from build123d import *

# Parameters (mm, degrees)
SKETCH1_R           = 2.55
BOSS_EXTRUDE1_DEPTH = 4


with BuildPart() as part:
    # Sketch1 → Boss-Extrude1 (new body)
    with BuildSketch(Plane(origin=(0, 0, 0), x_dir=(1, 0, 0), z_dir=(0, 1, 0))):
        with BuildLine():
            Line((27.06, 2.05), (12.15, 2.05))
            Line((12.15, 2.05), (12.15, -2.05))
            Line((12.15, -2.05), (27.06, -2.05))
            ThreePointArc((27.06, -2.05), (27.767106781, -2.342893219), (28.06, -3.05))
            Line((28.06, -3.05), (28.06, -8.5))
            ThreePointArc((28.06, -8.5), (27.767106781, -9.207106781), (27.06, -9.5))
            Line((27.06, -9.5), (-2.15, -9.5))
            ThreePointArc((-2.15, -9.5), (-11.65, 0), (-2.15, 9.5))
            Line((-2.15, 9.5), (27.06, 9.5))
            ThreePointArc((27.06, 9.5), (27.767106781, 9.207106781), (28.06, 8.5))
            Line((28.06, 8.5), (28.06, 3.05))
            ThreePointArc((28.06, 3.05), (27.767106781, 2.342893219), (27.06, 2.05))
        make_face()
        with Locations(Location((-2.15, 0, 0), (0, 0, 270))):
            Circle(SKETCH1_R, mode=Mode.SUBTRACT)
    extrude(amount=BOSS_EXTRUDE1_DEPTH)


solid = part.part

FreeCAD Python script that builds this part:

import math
import FreeCAD as App
import Part
import Sketcher
from FreeCAD import Vector
Q = App.Units.Quantity

doc = App.newDocument("Part")
params = doc.addObject("Spreadsheet::Sheet", "Params")
for row, (alias, value) in enumerate([
    ("sketch1_radius", "1 mm"),
    ("sketch1_diameter", "5.1 mm"),
    ("sketch1_radius2", "9.5 mm"),
    ("sketch1_height", "4.1 mm"),
    ("sketch1_width", "14.91 mm"),
    ("pad1_length", "4 mm"),
], start=1):
    params.set(f"A{row}", alias)
    params.set(f"B{row}", "=" + value)
    params.setAlias(f"B{row}", alias)

body = doc.addObject("PartDesign::Body", "Body")

# Sketch on XZ plane
sketch1 = body.newObject("Sketcher::SketchObject", "Sketch")
sketch1.AttachmentSupport = (doc.getObject("XZ_Plane"), [""])
sketch1.MapMode = "FlatFace"
sketch1.addGeometry([
    Part.LineSegment(Vector(12.2, -2, 0), Vector(27.1, -2, 0)),  # 0
    Part.ArcOfCircle(Part.Circle(Vector(27.1, -3.1, 0), Vector(0, 0, 1), 1), math.radians(0), math.radians(90)),  # 1
    Part.LineSegment(Vector(28.1, -3, 0), Vector(28.1, -8.5, 0)),  # 2
    Part.ArcOfCircle(Part.Circle(Vector(27.1, -8.5, 0), Vector(0, 0, 1), 1), math.radians(-90), math.radians(0)),  # 3
    Part.LineSegment(Vector(27.1, -9.5, 0), Vector(-2.1, -9.5, 0)),  # 4
    Part.ArcOfCircle(Part.Circle(Vector(-2.1, 0, 0), Vector(0, 0, 1), 9.5), math.radians(90), math.radians(270)),  # 5
    Part.LineSegment(Vector(-2.1, 9.5, 0), Vector(27.1, 9.5, 0)),  # 6
    Part.ArcOfCircle(Part.Circle(Vector(27.1, 8.5, 0), Vector(0, 0, 1), 1), math.radians(0), math.radians(90)),  # 7
    Part.LineSegment(Vector(28.1, 8.5, 0), Vector(28.1, 3, 0)),  # 8
    Part.ArcOfCircle(Part.Circle(Vector(27.1, 3.1, 0), Vector(0, 0, 1), 1), math.radians(-90), math.radians(0)),  # 9
    Part.LineSegment(Vector(27.1, 2, 0), Vector(12.2, 2, 0)),  # 10
    Part.LineSegment(Vector(12.2, 2, 0), Vector(12.2, -2, 0)),  # 11
    Part.Circle(Vector(-2.1, 0, 0), Vector(0, 0, 1), 2.5),  # 12
], False)
sketch1.addConstraint([
    Sketcher.Constraint("Tangent", 0, 2, 1, 2),
    Sketcher.Constraint("Tangent", 1, 1, 2, 1),
    Sketcher.Constraint("Tangent", 2, 2, 3, 2),
    Sketcher.Constraint("Tangent", 3, 1, 4, 1),
    Sketcher.Constraint("Tangent", 4, 2, 5, 2),
    Sketcher.Constraint("Tangent", 5, 1, 6, 1),
    Sketcher.Constraint("Tangent", 6, 2, 7, 2),
    Sketcher.Constraint("Tangent", 7, 1, 8, 1),
    Sketcher.Constraint("Tangent", 8, 2, 9, 2),
    Sketcher.Constraint("Tangent", 9, 1, 10, 1),
    Sketcher.Constraint("Coincident", 10, 2, 11, 1),
    Sketcher.Constraint("Coincident", 11, 2, 0, 1),
    Sketcher.Constraint("Horizontal", 0),
    Sketcher.Constraint("Vertical", 2),
    Sketcher.Constraint("Horizontal", 4),
    Sketcher.Constraint("Horizontal", 6),
    Sketcher.Constraint("Vertical", 8),
    Sketcher.Constraint("Horizontal", 10),
    Sketcher.Constraint("Vertical", 11),
    Sketcher.Constraint("Coincident", 12, 3, 5, 3),
    Sketcher.Constraint("Equal", 1, 3),
    Sketcher.Constraint("Equal", 3, 7),
    Sketcher.Constraint("Equal", 7, 9),
    Sketcher.Constraint("Symmetric", 3, 3, 7, 3, -1),
    Sketcher.Constraint("Equal", 2, 8),
    Sketcher.Constraint("Radius", 1, Q("1 mm")),
    Sketcher.Constraint("Diameter", 12, Q("5.1 mm")),
    Sketcher.Constraint("Radius", 5, Q("9.5 mm")),
    Sketcher.Constraint("DistanceY", 11, 2, 11, 1, Q("4.1 mm")),
    Sketcher.Constraint("DistanceX", 0, 1, 0, 2, Q("14.91 mm")),
    Sketcher.Constraint("DistanceX", 4, 2, 4, 1, Q("29.21 mm")),
    Sketcher.Constraint("DistanceX", -1, 1, 1, 3, Q("27.06 mm")),
])
sketch1.setExpression("Constraints[25]", "Params.sketch1_radius")
sketch1.setExpression("Constraints[26]", "Params.sketch1_diameter")
sketch1.setExpression("Constraints[27]", "Params.sketch1_radius2")
sketch1.setExpression("Constraints[28]", "Params.sketch1_height")
sketch1.setExpression("Constraints[29]", "Params.sketch1_width")
pad1 = body.newObject("PartDesign::Pad", "Pad")
pad1.Profile = sketch1
pad1.setExpression("Length", "Params.pad1_length")
pad1.Reversed = True

doc.recompute()
